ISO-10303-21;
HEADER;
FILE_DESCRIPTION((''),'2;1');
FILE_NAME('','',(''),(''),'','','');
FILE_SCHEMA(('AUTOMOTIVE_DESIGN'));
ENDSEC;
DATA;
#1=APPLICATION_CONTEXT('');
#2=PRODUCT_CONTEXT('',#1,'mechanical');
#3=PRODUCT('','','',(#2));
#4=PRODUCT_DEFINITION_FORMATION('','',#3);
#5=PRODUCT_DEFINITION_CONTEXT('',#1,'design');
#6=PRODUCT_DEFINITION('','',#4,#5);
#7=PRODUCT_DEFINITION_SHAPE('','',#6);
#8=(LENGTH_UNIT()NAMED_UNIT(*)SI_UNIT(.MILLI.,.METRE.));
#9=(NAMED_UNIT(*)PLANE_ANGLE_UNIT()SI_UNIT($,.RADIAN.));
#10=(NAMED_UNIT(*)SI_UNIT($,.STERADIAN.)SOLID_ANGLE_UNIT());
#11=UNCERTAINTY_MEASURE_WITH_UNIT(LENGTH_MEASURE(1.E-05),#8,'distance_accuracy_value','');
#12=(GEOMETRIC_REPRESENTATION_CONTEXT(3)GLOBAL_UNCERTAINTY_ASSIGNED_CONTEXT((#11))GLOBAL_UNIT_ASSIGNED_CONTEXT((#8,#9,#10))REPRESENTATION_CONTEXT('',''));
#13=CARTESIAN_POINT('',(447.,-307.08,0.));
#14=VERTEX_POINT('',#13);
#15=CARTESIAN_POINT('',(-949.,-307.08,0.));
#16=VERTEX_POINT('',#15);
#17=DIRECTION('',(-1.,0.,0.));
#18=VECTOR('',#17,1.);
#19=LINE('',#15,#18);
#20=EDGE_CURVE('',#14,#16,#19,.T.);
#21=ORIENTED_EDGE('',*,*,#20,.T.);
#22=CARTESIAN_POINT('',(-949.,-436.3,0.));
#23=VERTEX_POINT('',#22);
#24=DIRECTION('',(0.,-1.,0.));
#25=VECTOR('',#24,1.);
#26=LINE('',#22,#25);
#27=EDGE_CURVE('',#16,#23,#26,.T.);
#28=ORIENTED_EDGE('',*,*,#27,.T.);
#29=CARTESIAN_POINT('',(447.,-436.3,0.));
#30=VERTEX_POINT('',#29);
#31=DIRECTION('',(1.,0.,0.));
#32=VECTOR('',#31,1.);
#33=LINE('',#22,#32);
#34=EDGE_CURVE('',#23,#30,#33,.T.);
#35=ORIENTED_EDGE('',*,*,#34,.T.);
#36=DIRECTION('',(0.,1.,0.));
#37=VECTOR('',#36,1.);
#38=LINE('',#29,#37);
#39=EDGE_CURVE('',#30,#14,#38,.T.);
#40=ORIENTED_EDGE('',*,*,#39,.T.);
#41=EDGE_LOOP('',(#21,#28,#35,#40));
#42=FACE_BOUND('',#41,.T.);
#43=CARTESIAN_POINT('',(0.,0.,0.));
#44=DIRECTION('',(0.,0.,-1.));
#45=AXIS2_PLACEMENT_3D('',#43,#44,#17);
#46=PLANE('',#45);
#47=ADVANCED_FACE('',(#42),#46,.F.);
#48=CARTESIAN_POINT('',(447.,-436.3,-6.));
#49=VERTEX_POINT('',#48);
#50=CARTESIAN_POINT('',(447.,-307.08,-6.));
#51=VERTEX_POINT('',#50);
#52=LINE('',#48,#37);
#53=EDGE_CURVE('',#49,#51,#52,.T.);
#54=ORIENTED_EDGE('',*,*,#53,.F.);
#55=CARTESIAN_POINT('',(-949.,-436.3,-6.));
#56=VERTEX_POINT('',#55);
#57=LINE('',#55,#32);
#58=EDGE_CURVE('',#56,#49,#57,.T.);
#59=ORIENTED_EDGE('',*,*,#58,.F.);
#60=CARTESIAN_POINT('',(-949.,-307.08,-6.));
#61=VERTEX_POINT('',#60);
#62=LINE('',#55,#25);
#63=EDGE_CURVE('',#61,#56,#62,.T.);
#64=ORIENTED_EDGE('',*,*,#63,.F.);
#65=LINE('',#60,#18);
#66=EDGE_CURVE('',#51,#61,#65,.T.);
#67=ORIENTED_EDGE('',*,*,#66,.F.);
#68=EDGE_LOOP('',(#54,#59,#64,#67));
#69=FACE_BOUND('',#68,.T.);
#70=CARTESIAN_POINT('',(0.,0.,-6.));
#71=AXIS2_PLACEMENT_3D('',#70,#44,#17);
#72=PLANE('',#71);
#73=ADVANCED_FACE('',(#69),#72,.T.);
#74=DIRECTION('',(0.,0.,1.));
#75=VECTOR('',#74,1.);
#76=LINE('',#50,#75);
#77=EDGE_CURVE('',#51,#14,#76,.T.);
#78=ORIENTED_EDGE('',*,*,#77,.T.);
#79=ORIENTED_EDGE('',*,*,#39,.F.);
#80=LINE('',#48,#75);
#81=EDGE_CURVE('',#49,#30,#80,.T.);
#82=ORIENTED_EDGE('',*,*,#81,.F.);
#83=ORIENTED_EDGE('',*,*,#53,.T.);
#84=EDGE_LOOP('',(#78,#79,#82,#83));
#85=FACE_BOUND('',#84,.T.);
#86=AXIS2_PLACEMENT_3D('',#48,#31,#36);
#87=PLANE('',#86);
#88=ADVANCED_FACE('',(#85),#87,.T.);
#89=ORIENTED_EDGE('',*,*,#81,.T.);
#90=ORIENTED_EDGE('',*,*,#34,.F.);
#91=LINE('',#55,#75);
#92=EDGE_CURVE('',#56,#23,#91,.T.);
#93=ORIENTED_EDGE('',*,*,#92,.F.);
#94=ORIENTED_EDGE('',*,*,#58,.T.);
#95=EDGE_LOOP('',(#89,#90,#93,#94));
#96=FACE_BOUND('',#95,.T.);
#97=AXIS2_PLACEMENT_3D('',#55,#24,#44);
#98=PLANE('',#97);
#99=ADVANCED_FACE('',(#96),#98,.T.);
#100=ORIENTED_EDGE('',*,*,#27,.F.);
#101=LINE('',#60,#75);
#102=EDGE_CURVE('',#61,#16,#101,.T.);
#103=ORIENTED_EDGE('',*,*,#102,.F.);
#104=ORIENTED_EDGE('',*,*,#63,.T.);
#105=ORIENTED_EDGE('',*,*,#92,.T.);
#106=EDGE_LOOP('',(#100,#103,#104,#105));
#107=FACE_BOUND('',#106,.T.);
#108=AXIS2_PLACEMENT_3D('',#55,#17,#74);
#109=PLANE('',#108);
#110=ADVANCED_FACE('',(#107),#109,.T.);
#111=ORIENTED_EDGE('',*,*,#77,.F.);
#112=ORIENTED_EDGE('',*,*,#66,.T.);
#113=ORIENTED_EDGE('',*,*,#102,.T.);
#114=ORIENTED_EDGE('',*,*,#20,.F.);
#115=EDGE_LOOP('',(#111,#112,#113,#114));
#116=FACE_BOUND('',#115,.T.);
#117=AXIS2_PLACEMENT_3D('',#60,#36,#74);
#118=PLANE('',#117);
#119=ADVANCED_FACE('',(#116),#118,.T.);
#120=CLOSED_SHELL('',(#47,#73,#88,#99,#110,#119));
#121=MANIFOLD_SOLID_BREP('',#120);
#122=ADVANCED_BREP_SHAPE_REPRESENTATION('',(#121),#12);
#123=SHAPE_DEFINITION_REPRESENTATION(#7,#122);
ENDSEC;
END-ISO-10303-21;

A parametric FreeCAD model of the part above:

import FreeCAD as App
import Part
import Sketcher

V = App.Vector
Q = App.Units.Quantity


def add_polygon(sketch, points):
    """Adds a closed chain of lines whose ends are joined by coincident constraints."""
    first, n = sketch.GeometryCount, len(points)
    for a, b in zip(points, points[1:] + points[:1]):
        sketch.addGeometry(Part.LineSegment(App.Vector(*a, 0), App.Vector(*b, 0)), False)
    for i in range(n):
        sketch.addConstraint(Sketcher.Constraint("Coincident", first + i, 2, first + (i + 1) % n, 1))

doc = App.newDocument("Part")
body = doc.addObject("PartDesign::Body", "Body")

# Sketch on XY plane
sketch1 = doc.addObject("Sketcher::SketchObject", "Sketch")
body.addObject(sketch1)
sketch1.AttachmentSupport = (doc.XY_Plane, [""])
sketch1.MapMode = "FlatFace"
add_polygon(sketch1, [(-949, -307), (-949, -436), (447, -436), (447, -307)])  # lines 0-3
sketch1.addConstraint([
    Sketcher.Constraint("Vertical", 0),
    Sketcher.Constraint("Horizontal", 1),
    Sketcher.Constraint("Vertical", 2),
    Sketcher.Constraint("Horizontal", 3),
    Sketcher.Constraint("DistanceX", 1, 1, 1, 2, Q("1396 mm")),
    Sketcher.Constraint("DistanceX", 0, 2, -1, 1, Q("949 mm")),
    Sketcher.Constraint("DistanceY", 0, 2, 0, 1, Q("129.22 mm")),
    Sketcher.Constraint("DistanceY", 0, 2, -1, 1, Q("436.3 mm")),
])
pad1 = doc.addObject("PartDesign::Pad", "Pad")
body.addObject(pad1)
pad1.Profile = sketch1
pad1.Length = 6
pad1.Reversed = True

doc.recompute()
